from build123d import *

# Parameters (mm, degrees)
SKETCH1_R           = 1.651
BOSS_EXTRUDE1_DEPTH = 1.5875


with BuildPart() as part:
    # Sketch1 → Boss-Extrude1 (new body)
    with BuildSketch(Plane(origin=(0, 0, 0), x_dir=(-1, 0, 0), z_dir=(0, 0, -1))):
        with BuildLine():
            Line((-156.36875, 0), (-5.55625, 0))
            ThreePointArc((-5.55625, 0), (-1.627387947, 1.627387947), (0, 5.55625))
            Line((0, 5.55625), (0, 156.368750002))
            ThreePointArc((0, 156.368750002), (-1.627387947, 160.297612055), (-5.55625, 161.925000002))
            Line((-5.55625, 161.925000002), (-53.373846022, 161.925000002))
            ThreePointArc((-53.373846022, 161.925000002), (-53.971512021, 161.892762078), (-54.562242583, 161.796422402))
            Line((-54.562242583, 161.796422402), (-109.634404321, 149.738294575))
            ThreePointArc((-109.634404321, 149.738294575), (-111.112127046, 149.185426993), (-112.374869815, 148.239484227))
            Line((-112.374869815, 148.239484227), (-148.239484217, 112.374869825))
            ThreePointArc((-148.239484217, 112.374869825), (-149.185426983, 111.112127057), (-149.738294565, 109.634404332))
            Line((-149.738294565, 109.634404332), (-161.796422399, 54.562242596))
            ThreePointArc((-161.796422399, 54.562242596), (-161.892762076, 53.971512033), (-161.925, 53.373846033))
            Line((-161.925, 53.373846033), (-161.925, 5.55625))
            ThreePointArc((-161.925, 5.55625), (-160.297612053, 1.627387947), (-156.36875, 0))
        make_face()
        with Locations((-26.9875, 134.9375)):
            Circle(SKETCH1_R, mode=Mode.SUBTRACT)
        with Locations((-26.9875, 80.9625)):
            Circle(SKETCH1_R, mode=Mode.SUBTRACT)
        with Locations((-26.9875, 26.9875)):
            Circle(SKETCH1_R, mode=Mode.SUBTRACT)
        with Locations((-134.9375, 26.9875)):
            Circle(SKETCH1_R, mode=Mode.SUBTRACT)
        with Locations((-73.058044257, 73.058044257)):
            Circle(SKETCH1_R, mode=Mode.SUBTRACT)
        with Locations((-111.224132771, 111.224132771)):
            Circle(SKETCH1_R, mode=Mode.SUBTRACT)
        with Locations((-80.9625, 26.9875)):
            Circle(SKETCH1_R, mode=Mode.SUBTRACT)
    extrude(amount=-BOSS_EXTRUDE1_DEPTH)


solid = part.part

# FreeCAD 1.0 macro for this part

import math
import FreeCAD as App
import Part
import Sketcher

V = App.Vector
Q = App.Units.Quantity

doc = App.newDocument("Part")
params = doc.addObject("Spreadsheet::Sheet", "Params")
for row, (alias, value) in enumerate([
    ("sketch1_diameter", "0.13 in"),
    ("sketch1_radius", "0.21875 in"),
    ("sketch1_width", "5.9375 in"),
    ("pad1_length", "0.0625 in"),
], start=1):
    params.set(f"A{row}", alias)
    params.set(f"B{row}", "=" + value)
    params.setAlias(f"B{row}", alias)

body = doc.addObject("PartDesign::Body", "Body")

# Sketch on XY plane
sketch1 = doc.addObject("Sketcher::SketchObject", "Sketch")
body.addObject(sketch1)
sketch1.AttachmentSupport = (doc.XY_Plane, [""])
sketch1.MapMode = "FlatFace"
sketch1.addGeometry(Part.LineSegment(V(156.36875, 0, 0), V(5.55625, 0, 0)), False)
sketch1.addGeometry(Part.ArcOfCircle(Part.Circle(V(5.55625, 5.55625, 0), V(0, 0, 1), 5.55625), math.radians(180), math.radians(270)), False)
sketch1.addGeometry(Part.LineSegment(V(0, 5.55625, 0), V(0, 156.36875, 0)), False)
sketch1.addGeometry(Part.ArcOfCircle(Part.Circle(V(5.55625, 156.36875, 0), V(0, 0, 1), 5.55625), math.radians(90), math.radians(180)), False)
sketch1.addGeometry(Part.LineSegment(V(5.55625, 161.925, 0), V(53.373846, 161.925, 0)), False)
sketch1.addGeometry(Part.ArcOfCircle(Part.Circle(V(53.373846, 156.36875, 0), V(0, 0, 1), 5.55625), math.radians(77.6499), math.radians(90)), False)
sketch1.addGeometry(Part.LineSegment(V(54.562243, 161.796422, 0), V(109.634404, 149.738295, 0)), False)
sketch1.addGeometry(Part.ArcOfCircle(Part.Circle(V(108.446008, 144.310622, 0), V(0, 0, 1), 5.55625), math.radians(45), math.radians(77.6499)), False)
sketch1.addGeometry(Part.LineSegment(V(112.37487, 148.239484, 0), V(148.239484, 112.37487, 0)), False)
sketch1.addGeometry(Part.ArcOfCircle(Part.Circle(V(144.310622, 108.446008, 0), V(0, 0, 1), 5.55625), math.radians(12.3501), math.radians(45)), False)
sketch1.addGeometry(Part.LineSegment(V(149.738295, 109.634404, 0), V(161.796422, 54.562243, 0)), False)
sketch1.addGeometry(Part.ArcOfCircle(Part.Circle(V(156.36875, 53.373846, 0), V(0, 0, 1), 5.55625), math.radians(0), math.radians(12.3501)), False)
sketch1.addGeometry(Part.LineSegment(V(161.925, 53.373846, 0), V(161.925, 5.55625, 0)), False)
sketch1.addGeometry(Part.ArcOfCircle(Part.Circle(V(156.36875, 5.55625, 0), V(0, 0, 1), 5.55625), math.radians(-90), math.radians(0)), False)
sketch1.addGeometry(Part.Circle(V(134.9375, 26.9875, 0), V(0, 0, 1), 1.651), False)
sketch1.addGeometry(Part.Circle(V(80.9625, 26.9875, 0), V(0, 0, 1), 1.651), False)
sketch1.addGeometry(Part.Circle(V(26.9875, 26.9875, 0), V(0, 0, 1), 1.651), False)
sketch1.addGeometry(Part.Circle(V(73.058044, 73.058044, 0), V(0, 0, 1), 1.651), False)
sketch1.addGeometry(Part.Circle(V(111.224133, 111.224133, 0), V(0, 0, 1), 1.651), False)
sketch1.addGeometry(Part.Circle(V(26.9875, 80.9625, 0), V(0, 0, 1), 1.651), False)
sketch1.addGeometry(Part.Circle(V(26.9875, 134.9375, 0), V(0, 0, 1), 1.651), False)
sketch1.addConstraint(Sketcher.Constraint("Tangent", 0, 2, 1, 2))
sketch1.addConstraint(Sketcher.Constraint("Tangent", 1, 1, 2, 1))
sketch1.addConstraint(Sketcher.Constraint("Tangent", 2, 2, 3, 2))
sketch1.addConstraint(Sketcher.Constraint("Tangent", 3, 1, 4, 1))
sketch1.addConstraint(Sketcher.Constraint("Tangent", 4, 2, 5, 2))
sketch1.addConstraint(Sketcher.Constraint("Tangent", 5, 1, 6, 1))
sketch1.addConstraint(Sketcher.Constraint("Tangent", 6, 2, 7, 2))
sketch1.addConstraint(Sketcher.Constraint("Tangent", 7, 1, 8, 1))
sketch1.addConstraint(Sketcher.Constraint("Tangent", 8, 2, 9, 2))
sketch1.addConstraint(Sketcher.Constraint("Tangent", 9, 1, 10, 1))
sketch1.addConstraint(Sketcher.Constraint("Tangent", 10, 2, 11, 2))
sketch1.addConstraint(Sketcher.Constraint("Tangent", 11, 1, 12, 1))
sketch1.addConstraint(Sketcher.Constraint("Tangent", 12, 2, 13, 2))
sketch1.addConstraint(Sketcher.Constraint("Tangent", 13, 1, 0, 1))
sketch1.addConstraint(Sketcher.Constraint("Horizontal", 0))
sketch1.addConstraint(Sketcher.Constraint("Vertical", 2))
sketch1.addConstraint(Sketcher.Constraint("Horizontal", 4))
sketch1.addConstraint(Sketcher.Constraint("Vertical", 12))
sketch1.addConstraint(Sketcher.Constraint("Equal", 1, 3))
sketch1.addConstraint(Sketcher.Constraint("Equal", 3, 5))
sketch1.addConstraint(Sketcher.Constraint("Equal", 5, 7))
sketch1.addConstraint(Sketcher.Constraint("Equal", 7, 9))
sketch1.addConstraint(Sketcher.Constraint("Equal", 9, 11))
sketch1.addConstraint(Sketcher.Constraint("Equal", 11, 13))
sketch1.addConstraint(Sketcher.Constraint("Equal", 14, 15))
sketch1.addConstraint(Sketcher.Constraint("Equal", 15, 16))
sketch1.addConstraint(Sketcher.Constraint("Equal", 16, 17))
sketch1.addConstraint(Sketcher.Constraint("Equal", 17, 18))
sketch1.addConstraint(Sketcher.Constraint("Equal", 18, 19))
sketch1.addConstraint(Sketcher.Constraint("Equal", 19, 20))
sketch1.addConstraint(Sketcher.Constraint("PointOnObject", 0, 2, -1))
sketch1.addConstraint(Sketcher.Constraint("PointOnObject", 1, 1, -2))
sketch1.addConstraint(Sketcher.Constraint("Horizontal", 14, 3, 15, 3))
sketch1.addConstraint(Sketcher.Constraint("Horizontal", 15, 3, 16, 3))
sketch1.addConstraint(Sketcher.Constraint("Vertical", 16, 3, 19, 3))
sketch1.addConstraint(Sketcher.Constraint("Vertical", 19, 3, 20, 3))
sketch1.addConstraint(Sketcher.Constraint("Equal", 0, 2))
sketch1.addConstraint(Sketcher.Constraint("Equal", 4, 12))
sketch1.addConstraint(Sketcher.Constraint("Equal", 6, 10))
sketch1.addConstraint(Sketcher.Constraint("Diameter", 14, Q("0.13 in")))
sketch1.addConstraint(Sketcher.Constraint("Angle", 8, Q("-45 deg")))
sketch1.addConstraint(Sketcher.Constraint("Radius", 1, Q("0.21875 in")))
sketch1.addConstraint(Sketcher.Constraint("DistanceX", 0, 2, 0, 1, Q("5.9375 in")))
sketch1.addConstraint(Sketcher.Constraint("DistanceX", 16, 3, 14, 3, Q("4.25 in")))
sketch1.addConstraint(Sketcher.Constraint("DistanceX", -1, 1, 14, 3, Q("5.3125 in")))
sketch1.addConstraint(Sketcher.Constraint("DistanceY", -1, 1, 14, 3, Q("1.0625 in")))
sketch1.addConstraint(Sketcher.Constraint("DistanceX", -1, 1, 15, 3, Q("3.1875 in")))
sketch1.addConstraint(Sketcher.Constraint("DistanceY", -1, 1, 19, 3, Q("3.1875 in")))
sketch1.addConstraint(Sketcher.Constraint("DistanceY", -1, 1, 20, 3, Q("5.3125 in")))
sketch1.addConstraint(Sketcher.Constraint("DistanceY", 9, 3, 18, 3, Q("0.109375 in")))
sketch1.addConstraint(Sketcher.Constraint("DistanceX", 7, 3, 18, 3, Q("0.109375 in")))
sketch1.addConstraint(Sketcher.Constraint("DistanceY", -1, 1, 7, 1, Q("5.8362002 in")))
sketch1.addConstraint(Sketcher.Constraint("Distance", 6, Q("56.376781 mm")))
sketch1.addConstraint(Sketcher.Constraint("DistanceX", 4, 1, 4, 2, Q("47.817596 mm")))
sketch1.addConstraint(Sketcher.Constraint("DistanceX", 17, 3, 18, 3, Q("38.166089 mm")))
sketch1.addConstraint(Sketcher.Constraint("DistanceY", 17, 3, 18, 3, Q("38.166089 mm")))
sketch1.setExpression("Constraints[39]", "Params.sketch1_diameter")
sketch1.setExpression("Constraints[41]", "Params.sketch1_radius")
sketch1.setExpression("Constraints[42]", "Params.sketch1_width")
pad1 = doc.addObject("PartDesign::Pad", "Pad")
body.addObject(pad1)
pad1.Profile = sketch1
pad1.setExpression("Length", "Params.pad1_length")

doc.recompute()
